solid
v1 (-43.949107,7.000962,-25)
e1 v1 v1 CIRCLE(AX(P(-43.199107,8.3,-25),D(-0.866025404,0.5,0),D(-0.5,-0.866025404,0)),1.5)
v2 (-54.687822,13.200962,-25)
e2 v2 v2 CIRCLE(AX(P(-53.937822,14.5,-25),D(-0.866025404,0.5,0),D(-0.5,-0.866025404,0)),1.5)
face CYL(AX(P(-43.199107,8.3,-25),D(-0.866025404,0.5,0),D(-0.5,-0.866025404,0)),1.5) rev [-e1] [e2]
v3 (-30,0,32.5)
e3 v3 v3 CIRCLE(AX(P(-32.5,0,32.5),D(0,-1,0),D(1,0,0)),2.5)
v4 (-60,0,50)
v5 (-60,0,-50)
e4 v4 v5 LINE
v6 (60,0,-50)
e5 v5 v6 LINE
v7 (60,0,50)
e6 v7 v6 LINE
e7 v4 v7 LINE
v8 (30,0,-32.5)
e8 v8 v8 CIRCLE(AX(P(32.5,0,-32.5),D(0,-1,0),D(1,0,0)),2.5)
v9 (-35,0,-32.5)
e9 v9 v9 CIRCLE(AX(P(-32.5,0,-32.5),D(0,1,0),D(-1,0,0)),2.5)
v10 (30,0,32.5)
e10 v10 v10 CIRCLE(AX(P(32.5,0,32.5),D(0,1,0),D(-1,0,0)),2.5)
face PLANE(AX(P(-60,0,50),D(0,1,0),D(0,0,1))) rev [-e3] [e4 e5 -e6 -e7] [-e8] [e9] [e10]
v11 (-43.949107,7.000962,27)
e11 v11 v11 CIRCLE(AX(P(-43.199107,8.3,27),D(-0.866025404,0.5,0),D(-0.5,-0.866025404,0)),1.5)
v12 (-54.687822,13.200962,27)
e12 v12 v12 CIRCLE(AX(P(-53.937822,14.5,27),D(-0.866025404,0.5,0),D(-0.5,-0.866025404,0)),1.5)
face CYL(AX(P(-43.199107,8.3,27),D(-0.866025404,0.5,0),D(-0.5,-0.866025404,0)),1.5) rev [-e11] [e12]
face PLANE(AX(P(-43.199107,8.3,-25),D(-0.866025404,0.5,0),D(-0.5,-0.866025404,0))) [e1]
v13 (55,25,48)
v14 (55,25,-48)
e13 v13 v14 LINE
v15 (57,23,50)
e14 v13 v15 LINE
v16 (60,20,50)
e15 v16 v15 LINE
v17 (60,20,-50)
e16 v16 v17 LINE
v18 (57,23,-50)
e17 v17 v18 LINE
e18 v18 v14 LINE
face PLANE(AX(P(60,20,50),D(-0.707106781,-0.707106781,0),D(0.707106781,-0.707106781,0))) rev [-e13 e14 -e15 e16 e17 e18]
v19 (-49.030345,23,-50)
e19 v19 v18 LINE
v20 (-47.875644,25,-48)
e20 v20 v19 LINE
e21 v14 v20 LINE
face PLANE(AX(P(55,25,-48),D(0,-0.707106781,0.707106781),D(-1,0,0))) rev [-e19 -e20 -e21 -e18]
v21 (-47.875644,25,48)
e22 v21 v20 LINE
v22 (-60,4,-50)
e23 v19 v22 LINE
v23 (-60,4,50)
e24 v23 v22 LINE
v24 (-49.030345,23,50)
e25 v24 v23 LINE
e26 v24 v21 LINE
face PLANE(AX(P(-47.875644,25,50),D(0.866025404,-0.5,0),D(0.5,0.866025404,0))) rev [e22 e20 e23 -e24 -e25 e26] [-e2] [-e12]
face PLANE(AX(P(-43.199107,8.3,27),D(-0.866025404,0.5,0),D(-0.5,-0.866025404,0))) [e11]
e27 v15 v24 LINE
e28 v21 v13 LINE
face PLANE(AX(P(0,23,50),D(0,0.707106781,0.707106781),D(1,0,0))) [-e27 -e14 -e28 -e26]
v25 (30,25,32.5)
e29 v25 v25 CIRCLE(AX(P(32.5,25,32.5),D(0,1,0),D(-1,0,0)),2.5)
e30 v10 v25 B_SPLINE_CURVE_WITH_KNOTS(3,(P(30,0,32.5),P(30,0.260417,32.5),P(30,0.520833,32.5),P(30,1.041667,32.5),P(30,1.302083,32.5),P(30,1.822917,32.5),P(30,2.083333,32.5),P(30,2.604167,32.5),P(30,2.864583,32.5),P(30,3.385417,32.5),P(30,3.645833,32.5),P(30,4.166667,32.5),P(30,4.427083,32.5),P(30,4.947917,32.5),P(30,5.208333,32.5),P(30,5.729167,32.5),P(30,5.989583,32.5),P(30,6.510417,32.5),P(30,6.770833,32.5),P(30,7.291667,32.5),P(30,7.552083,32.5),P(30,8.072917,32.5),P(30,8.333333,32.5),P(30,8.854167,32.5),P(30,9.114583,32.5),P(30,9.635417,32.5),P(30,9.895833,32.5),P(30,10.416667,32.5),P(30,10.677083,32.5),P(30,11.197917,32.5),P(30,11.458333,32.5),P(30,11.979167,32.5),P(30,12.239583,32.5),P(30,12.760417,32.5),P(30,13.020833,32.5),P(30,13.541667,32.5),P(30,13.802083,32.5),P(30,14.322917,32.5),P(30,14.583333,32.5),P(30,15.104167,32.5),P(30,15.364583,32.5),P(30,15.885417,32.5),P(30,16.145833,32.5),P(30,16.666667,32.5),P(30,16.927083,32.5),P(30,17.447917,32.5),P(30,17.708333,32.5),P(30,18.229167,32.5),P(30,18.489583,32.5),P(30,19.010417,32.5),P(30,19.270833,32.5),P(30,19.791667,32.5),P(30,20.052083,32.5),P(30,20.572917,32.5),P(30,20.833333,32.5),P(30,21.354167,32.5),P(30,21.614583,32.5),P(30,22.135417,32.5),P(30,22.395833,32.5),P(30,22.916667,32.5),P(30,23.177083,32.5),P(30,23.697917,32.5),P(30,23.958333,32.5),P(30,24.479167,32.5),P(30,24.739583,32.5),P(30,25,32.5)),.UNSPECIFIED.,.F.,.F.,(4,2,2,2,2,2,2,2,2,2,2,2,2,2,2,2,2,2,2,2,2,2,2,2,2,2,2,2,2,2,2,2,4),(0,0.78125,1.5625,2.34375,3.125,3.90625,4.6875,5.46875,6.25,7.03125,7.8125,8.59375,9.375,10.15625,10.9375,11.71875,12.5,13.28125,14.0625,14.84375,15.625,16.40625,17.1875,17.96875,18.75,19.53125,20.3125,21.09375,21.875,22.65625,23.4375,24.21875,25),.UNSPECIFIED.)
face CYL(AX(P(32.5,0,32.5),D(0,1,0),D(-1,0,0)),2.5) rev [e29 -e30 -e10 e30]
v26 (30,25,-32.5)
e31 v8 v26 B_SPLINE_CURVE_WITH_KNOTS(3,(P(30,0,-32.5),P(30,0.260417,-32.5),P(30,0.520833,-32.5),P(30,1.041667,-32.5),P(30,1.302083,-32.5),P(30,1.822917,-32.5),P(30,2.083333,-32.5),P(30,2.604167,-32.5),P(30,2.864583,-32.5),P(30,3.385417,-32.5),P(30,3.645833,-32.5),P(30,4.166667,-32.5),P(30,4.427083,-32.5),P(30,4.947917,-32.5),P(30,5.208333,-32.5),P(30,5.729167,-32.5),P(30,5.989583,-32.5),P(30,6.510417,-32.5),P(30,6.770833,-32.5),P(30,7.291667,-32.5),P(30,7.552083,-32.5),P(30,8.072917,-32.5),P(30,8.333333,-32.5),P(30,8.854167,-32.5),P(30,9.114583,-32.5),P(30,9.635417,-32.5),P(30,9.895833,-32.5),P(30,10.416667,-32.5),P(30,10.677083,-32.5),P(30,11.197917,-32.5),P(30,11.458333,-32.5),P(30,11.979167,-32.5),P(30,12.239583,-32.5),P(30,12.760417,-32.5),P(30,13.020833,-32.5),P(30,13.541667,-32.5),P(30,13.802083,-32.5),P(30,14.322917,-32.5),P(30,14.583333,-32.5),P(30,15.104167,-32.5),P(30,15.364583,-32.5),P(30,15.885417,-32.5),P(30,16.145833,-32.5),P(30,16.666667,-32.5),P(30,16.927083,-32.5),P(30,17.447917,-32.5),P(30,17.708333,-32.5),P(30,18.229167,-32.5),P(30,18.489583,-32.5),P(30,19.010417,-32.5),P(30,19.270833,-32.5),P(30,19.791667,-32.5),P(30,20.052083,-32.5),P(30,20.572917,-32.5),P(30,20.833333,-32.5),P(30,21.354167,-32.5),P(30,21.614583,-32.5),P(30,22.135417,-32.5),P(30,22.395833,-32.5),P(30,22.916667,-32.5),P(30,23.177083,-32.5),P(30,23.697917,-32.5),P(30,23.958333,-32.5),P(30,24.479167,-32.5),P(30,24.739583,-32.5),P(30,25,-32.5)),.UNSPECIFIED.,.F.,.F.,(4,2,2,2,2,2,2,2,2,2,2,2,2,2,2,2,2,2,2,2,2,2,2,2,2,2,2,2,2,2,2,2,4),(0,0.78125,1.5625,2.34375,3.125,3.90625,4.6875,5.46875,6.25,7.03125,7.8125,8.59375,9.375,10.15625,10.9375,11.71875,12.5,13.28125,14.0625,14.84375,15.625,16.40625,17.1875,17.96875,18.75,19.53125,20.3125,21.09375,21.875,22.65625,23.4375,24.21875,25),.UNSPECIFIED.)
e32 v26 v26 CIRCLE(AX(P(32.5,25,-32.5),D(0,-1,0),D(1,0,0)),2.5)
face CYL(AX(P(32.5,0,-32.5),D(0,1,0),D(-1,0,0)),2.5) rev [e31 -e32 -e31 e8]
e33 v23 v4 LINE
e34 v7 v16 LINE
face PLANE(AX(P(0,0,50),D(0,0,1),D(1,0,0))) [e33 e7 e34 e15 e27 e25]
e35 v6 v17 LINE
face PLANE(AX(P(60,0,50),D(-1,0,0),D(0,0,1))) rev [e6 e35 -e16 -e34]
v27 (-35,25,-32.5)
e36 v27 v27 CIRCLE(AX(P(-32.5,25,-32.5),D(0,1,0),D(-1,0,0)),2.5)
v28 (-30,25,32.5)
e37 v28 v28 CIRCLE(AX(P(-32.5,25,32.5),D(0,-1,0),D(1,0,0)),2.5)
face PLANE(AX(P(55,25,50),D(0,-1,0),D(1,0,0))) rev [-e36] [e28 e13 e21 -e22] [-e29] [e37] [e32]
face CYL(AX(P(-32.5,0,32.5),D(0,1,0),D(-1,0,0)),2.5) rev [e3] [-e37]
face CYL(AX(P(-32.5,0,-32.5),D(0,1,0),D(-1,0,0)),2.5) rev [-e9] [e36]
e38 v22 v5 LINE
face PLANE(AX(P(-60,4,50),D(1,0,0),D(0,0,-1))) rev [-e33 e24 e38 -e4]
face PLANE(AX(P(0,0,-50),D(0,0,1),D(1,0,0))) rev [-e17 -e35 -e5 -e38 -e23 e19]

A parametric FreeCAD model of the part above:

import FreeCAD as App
import Part
import Sketcher

V = App.Vector
Q = App.Units.Quantity


def edges_at(feature, points):
    """Names of the edges that pass closest to the given points."""
    edges = feature.Shape.Edges
    near = lambda p: min(range(len(edges)), key=lambda i: edges[i].distToShape(Part.Vertex(*p))[0])
    return sorted({f"Edge{near(p) + 1}" for p in points})


def add_polygon(sketch, points):
    """Adds a closed chain of lines whose ends are joined by coincident constraints."""
    first, n = sketch.GeometryCount, len(points)
    for a, b in zip(points, points[1:] + points[:1]):
        sketch.addGeometry(Part.LineSegment(App.Vector(*a, 0), App.Vector(*b, 0)), False)
    for i in range(n):
        sketch.addConstraint(Sketcher.Constraint("Coincident", first + i, 2, first + (i + 1) % n, 1))

doc = App.newDocument("Part")
body = doc.addObject("PartDesign::Body", "Body")

sketch1 = body.newObject("Sketcher::SketchObject", "Sketch")
sketch1.AttachmentSupport = (doc.getObject("XY_Plane"), [""])
sketch1.MapMode = "FlatFace"
add_polygon(sketch1, [(-60, 0), (60, 0), (60, 20), (55, 25), (-47.9, 25), (-60, 4)])
sketch1.addConstraint(Sketcher.Constraint("Horizontal", 0))
sketch1.addConstraint(Sketcher.Constraint("Vertical", 1))
sketch1.addConstraint(Sketcher.Constraint("Horizontal", 3))
sketch1.addConstraint(Sketcher.Constraint("Vertical", 5))
sketch1.addConstraint(Sketcher.Constraint("Symmetric", 0, 2, 5, 2, -1, 1))
sketch1.addConstraint(Sketcher.Constraint("DistanceX", 0, 1, 0, 2, 120.0))
sketch1.addConstraint(Sketcher.Constraint("DistanceY", 1, 1, 1, 2, 20.0))
sketch1.addConstraint(Sketcher.Constraint("DistanceY", 5, 2, 5, 1, 4.0))
sketch1.addConstraint(Sketcher.Constraint("Angle", 2, Q("135 deg")))
sketch1.addConstraint(Sketcher.Constraint("Angle", 4, Q("-120 deg")))
sketch1.addConstraint(Sketcher.Constraint("DistanceX", -1, 1, 2, 2, 55.0))
pad1 = body.newObject("PartDesign::Pad", "Pad")
pad1.Profile = sketch1
pad1.Length = 100
pad1.Midplane = True

sketch2 = body.newObject("Sketcher::SketchObject", "Sketch001")
sketch2.AttachmentSupport = (doc.getObject("XZ_Plane"), [""])
sketch2.MapMode = "FlatFace"
sketch2.AttachmentOffset = App.Placement(V(0, 0, -25), App.Rotation())
sketch2.addGeometry(Part.Circle(V(-32.5, -32.5, 0), V(0, 0, 1), 2.5), False)
sketch2.addGeometry(Part.Circle(V(-32.5, 32.5, 0), V(0, 0, 1), 2.5), False)
sketch2.addConstraint(Sketcher.Constraint("Equal", 0, 1))
sketch2.addConstraint(Sketcher.Constraint("Symmetric", 0, 3, 1, 3, -1))
sketch2.addConstraint(Sketcher.Constraint("Diameter", 0, 5.0))
sketch2.addConstraint(Sketcher.Constraint("DistanceY", 0, 3, 1, 3, 65.0))
sketch2.addConstraint(Sketcher.Constraint("DistanceX", 0, 3, -1, 1, 32.5))
pocket1 = body.newObject("PartDesign::Pocket", "Pocket")
pocket1.Profile = sketch2
pocket1.Type = "ThroughAll"
pocket1.Reversed = True
doc.recompute()

mirrored = body.newObject("PartDesign::Mirrored", "Mirrored")
mirrored.Originals = [pocket1]
mirrored.MirrorPlane = (doc.getObject("YZ_Plane"), [""])
body.Tip = mirrored

sketch3 = body.newObject("Sketcher::SketchObject", "Sketch002")
sketch3.Placement = App.Placement(V(-46.732051, 26.980762, 0), App.Rotation(V(0, 0, 1), V(0.5, 0.866025404, 0), V(-0.866025404, 0.5, 0), "ZXY"))
sketch3.addGeometry(Part.Circle(V(-25, -14.4, 0), V(0, 0, 1), 1.5), False)
sketch3.addGeometry(Part.Circle(V(27, -14.4, 0), V(0, 0, 1), 1.5), False)
sketch3.addConstraint(Sketcher.Constraint("Equal", 0, 1))
sketch3.addConstraint(Sketcher.Constraint("Horizontal", 0, 3, 1, 3))
sketch3.addConstraint(Sketcher.Constraint("Diameter", 0, 3.0))
sketch3.addConstraint(Sketcher.Constraint("DistanceX", 0, 3, -1, 1, 25.0))
sketch3.addConstraint(Sketcher.Constraint("DistanceX", -1, 1, 1, 3, 27.0))
sketch3.addConstraint(Sketcher.Constraint("DistanceY", 0, 3, -1, 1, 14.411543))
pocket2 = body.newObject("PartDesign::Pocket", "Pocket001")
pocket2.Profile = sketch3
pocket2.Length = 12.4
doc.recompute()

chamfer = body.newObject("PartDesign::Chamfer", "Chamfer")
chamfer.Base = (pocket2, edges_at(pocket2, [(3.562, 25, 50), (3.562, 25, -50)]))
chamfer.Size = 2

doc.recompute()
